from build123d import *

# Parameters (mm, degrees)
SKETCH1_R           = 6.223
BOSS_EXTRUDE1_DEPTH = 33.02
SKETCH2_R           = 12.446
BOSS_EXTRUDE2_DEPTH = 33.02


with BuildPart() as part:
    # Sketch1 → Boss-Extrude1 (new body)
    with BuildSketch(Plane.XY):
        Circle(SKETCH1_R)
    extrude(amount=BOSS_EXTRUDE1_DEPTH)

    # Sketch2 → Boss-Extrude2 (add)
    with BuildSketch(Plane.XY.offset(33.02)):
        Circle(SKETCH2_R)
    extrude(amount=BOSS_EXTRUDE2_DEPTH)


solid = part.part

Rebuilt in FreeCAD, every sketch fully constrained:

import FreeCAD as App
import Part
import Sketcher

V = App.Vector
Q = App.Units.Quantity

doc = App.newDocument("Part")
body = doc.addObject("PartDesign::Body", "Body")

# Sketch on XY plane
sketch1 = doc.addObject("Sketcher::SketchObject", "Sketch")
body.addObject(sketch1)
sketch1.AttachmentSupport = (doc.XY_Plane, [""])
sketch1.MapMode = "FlatFace"
sketch1.addGeometry(Part.Circle(V(0, 0, 0), V(0, 0, 1), 6.223), False)
sketch1.addConstraint(Sketcher.Constraint("Coincident", 0, 3, -1, 1))
sketch1.addConstraint(Sketcher.Constraint("Diameter", 0, Q("0.49 in")))
pad1 = doc.addObject("PartDesign::Pad", "Pad")
body.addObject(pad1)
pad1.Profile = sketch1
pad1.Length = Q("1.3 in")

# Sketch on XY plane
sketch2 = doc.addObject("Sketcher::SketchObject", "Sketch001")
body.addObject(sketch2)
sketch2.AttachmentSupport = (doc.XY_Plane, [""])
sketch2.MapMode = "FlatFace"
sketch2.AttachmentOffset = App.Placement(V(0, 0, 1.3 * 25.4), App.Rotation())
sketch2.addGeometry(Part.Circle(V(0, 0, 0), V(0, 0, 1), 12.446), False)
sketch2.addConstraint(Sketcher.Constraint("Coincident", 0, 3, -1, 1))
sketch2.addConstraint(Sketcher.Constraint("Diameter", 0, Q("0.98 in")))
pad2 = doc.addObject("PartDesign::Pad", "Pad001")
body.addObject(pad2)
pad2.Profile = sketch2
pad2.Length = Q("1.3 in")

doc.recompute()
